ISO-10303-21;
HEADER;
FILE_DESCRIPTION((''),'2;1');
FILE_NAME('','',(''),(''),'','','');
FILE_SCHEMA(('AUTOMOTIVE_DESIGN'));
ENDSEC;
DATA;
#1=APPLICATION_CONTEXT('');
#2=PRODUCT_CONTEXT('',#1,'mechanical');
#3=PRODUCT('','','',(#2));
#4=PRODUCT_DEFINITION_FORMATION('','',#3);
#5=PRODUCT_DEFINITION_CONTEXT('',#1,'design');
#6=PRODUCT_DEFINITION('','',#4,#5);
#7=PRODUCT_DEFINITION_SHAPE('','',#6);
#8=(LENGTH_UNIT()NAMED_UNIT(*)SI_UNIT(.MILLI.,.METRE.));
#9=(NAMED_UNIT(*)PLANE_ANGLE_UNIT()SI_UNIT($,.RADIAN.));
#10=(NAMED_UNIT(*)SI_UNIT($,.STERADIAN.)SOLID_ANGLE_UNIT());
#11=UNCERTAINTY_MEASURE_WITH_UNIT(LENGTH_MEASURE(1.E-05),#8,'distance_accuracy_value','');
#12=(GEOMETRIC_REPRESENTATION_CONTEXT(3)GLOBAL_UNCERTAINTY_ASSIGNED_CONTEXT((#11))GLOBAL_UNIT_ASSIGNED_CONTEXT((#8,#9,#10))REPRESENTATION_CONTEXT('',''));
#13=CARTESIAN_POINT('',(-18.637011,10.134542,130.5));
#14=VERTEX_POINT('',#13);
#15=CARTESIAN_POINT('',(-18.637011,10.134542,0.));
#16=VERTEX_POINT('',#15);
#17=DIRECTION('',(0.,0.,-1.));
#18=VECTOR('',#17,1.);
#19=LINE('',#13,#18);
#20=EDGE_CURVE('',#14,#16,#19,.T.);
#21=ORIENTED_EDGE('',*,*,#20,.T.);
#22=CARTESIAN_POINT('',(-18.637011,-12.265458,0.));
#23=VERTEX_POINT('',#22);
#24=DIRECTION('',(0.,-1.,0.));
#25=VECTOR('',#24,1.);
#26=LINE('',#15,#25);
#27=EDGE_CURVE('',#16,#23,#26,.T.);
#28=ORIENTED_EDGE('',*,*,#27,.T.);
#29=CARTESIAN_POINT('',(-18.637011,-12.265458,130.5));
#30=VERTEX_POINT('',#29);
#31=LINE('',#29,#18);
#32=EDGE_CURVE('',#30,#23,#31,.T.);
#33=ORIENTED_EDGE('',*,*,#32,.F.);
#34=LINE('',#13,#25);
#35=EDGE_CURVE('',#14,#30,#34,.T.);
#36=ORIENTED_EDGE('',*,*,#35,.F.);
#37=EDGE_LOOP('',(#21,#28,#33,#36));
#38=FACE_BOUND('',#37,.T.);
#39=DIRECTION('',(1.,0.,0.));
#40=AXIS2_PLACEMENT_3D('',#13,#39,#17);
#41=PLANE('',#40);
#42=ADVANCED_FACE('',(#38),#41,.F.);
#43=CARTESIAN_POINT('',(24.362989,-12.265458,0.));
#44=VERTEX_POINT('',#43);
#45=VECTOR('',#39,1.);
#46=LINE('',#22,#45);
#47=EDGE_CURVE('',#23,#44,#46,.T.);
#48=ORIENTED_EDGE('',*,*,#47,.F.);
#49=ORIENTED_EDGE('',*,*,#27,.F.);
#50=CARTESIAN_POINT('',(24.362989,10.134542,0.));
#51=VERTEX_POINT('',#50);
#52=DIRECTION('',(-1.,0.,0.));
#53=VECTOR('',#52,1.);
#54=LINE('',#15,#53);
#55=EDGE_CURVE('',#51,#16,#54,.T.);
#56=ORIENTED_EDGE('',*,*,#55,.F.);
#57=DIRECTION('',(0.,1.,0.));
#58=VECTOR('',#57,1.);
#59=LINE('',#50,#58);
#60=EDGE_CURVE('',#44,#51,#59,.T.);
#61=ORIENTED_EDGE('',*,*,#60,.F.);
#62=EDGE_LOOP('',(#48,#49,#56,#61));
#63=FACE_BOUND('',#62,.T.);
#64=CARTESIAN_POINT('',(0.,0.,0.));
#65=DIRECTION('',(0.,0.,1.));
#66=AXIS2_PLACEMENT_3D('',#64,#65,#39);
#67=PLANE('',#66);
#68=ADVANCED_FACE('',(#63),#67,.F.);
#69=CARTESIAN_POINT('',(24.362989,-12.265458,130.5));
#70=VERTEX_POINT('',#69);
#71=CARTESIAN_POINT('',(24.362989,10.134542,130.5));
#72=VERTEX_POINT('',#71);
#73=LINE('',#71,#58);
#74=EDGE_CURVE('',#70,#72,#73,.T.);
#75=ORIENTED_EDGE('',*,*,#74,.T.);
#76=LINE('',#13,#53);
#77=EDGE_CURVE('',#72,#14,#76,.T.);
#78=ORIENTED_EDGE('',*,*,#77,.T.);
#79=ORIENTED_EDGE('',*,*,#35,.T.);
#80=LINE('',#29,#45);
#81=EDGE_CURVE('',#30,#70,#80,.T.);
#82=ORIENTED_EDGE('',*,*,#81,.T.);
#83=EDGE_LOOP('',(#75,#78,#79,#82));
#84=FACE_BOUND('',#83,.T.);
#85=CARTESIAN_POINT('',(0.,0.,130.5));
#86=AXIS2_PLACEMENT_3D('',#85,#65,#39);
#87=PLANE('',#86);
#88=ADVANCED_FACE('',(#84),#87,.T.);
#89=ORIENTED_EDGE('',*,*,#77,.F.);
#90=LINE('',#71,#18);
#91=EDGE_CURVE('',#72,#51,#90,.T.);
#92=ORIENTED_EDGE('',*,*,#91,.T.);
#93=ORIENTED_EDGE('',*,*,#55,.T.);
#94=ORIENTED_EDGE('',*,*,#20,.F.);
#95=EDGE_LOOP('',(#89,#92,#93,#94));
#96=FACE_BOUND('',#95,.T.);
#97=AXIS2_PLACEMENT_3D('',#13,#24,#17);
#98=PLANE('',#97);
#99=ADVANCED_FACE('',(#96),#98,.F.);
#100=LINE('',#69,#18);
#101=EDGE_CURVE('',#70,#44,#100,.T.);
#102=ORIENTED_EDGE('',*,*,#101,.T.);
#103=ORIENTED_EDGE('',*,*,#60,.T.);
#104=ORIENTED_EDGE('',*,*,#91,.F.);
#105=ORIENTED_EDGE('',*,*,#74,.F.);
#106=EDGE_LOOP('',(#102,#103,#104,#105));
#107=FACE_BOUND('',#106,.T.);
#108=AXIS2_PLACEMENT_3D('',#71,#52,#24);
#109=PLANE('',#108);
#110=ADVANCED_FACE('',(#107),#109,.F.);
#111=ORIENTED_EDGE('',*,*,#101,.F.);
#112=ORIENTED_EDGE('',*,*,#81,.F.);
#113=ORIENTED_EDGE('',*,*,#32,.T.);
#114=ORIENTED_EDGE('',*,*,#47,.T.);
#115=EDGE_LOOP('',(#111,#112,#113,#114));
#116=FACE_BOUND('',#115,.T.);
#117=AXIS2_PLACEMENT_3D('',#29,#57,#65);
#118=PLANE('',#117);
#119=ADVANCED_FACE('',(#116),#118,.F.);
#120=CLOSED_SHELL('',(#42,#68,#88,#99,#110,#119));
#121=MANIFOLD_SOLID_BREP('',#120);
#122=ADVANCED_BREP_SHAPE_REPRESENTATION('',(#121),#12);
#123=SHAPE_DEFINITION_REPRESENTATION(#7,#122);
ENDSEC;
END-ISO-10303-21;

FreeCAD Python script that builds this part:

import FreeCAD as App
import Part
import Sketcher

V = App.Vector
Q = App.Units.Quantity

doc = App.newDocument("Part")
params = doc.addObject("Spreadsheet::Sheet", "Params")
for row, (alias, value) in enumerate([
    ("sketch1_width", "43 mm"),
    ("sketch1_height", "22.4 mm"),
    ("pad1_length", "130.5 mm"),
], start=1):
    params.set(f"A{row}", alias)
    params.set(f"B{row}", "=" + value)
    params.setAlias(f"B{row}", alias)

body = doc.addObject("PartDesign::Body", "Body")

sketch1 = body.newObject("Sketcher::SketchObject", "Sketch")
sketch1.AttachmentSupport = (doc.getObject("XY_Plane"), [""])
sketch1.MapMode = "FlatFace"
sketch1.addGeometry(Part.LineSegment(V(-19, 10, 0), V(-19, -12, 0)), False)
sketch1.addGeometry(Part.LineSegment(V(-19, -12, 0), V(24, -12, 0)), False)
sketch1.addGeometry(Part.LineSegment(V(24, -12, 0), V(24, 10, 0)), False)
sketch1.addGeometry(Part.LineSegment(V(24, 10, 0), V(-19, 10, 0)), False)
sketch1.addConstraint(Sketcher.Constraint("Coincident", 0, 2, 1, 1))
sketch1.addConstraint(Sketcher.Constraint("Coincident", 1, 2, 2, 1))
sketch1.addConstraint(Sketcher.Constraint("Coincident", 2, 2, 3, 1))
sketch1.addConstraint(Sketcher.Constraint("Coincident", 3, 2, 0, 1))
sketch1.addConstraint(Sketcher.Constraint("Vertical", 0))
sketch1.addConstraint(Sketcher.Constraint("Horizontal", 1))
sketch1.addConstraint(Sketcher.Constraint("Vertical", 2))
sketch1.addConstraint(Sketcher.Constraint("Horizontal", 3))
sketch1.addConstraint(Sketcher.Constraint("DistanceX", 1, 1, 1, 2, Q("43 mm")))
sketch1.addConstraint(Sketcher.Constraint("DistanceY", 0, 2, 0, 1, Q("22.4 mm")))
sketch1.addConstraint(Sketcher.Constraint("DistanceX", 0, 2, -1, 1, Q("18.637011 mm")))
sketch1.addConstraint(Sketcher.Constraint("DistanceY", 0, 2, -1, 1, Q("12.265458 mm")))
sketch1.setExpression("Constraints[8]", "Params.sketch1_width")
sketch1.setExpression("Constraints[9]", "Params.sketch1_height")
pad1 = body.newObject("PartDesign::Pad", "Pad")
pad1.Profile = sketch1
pad1.setExpression("Length", "Params.pad1_length")

doc.recompute()
